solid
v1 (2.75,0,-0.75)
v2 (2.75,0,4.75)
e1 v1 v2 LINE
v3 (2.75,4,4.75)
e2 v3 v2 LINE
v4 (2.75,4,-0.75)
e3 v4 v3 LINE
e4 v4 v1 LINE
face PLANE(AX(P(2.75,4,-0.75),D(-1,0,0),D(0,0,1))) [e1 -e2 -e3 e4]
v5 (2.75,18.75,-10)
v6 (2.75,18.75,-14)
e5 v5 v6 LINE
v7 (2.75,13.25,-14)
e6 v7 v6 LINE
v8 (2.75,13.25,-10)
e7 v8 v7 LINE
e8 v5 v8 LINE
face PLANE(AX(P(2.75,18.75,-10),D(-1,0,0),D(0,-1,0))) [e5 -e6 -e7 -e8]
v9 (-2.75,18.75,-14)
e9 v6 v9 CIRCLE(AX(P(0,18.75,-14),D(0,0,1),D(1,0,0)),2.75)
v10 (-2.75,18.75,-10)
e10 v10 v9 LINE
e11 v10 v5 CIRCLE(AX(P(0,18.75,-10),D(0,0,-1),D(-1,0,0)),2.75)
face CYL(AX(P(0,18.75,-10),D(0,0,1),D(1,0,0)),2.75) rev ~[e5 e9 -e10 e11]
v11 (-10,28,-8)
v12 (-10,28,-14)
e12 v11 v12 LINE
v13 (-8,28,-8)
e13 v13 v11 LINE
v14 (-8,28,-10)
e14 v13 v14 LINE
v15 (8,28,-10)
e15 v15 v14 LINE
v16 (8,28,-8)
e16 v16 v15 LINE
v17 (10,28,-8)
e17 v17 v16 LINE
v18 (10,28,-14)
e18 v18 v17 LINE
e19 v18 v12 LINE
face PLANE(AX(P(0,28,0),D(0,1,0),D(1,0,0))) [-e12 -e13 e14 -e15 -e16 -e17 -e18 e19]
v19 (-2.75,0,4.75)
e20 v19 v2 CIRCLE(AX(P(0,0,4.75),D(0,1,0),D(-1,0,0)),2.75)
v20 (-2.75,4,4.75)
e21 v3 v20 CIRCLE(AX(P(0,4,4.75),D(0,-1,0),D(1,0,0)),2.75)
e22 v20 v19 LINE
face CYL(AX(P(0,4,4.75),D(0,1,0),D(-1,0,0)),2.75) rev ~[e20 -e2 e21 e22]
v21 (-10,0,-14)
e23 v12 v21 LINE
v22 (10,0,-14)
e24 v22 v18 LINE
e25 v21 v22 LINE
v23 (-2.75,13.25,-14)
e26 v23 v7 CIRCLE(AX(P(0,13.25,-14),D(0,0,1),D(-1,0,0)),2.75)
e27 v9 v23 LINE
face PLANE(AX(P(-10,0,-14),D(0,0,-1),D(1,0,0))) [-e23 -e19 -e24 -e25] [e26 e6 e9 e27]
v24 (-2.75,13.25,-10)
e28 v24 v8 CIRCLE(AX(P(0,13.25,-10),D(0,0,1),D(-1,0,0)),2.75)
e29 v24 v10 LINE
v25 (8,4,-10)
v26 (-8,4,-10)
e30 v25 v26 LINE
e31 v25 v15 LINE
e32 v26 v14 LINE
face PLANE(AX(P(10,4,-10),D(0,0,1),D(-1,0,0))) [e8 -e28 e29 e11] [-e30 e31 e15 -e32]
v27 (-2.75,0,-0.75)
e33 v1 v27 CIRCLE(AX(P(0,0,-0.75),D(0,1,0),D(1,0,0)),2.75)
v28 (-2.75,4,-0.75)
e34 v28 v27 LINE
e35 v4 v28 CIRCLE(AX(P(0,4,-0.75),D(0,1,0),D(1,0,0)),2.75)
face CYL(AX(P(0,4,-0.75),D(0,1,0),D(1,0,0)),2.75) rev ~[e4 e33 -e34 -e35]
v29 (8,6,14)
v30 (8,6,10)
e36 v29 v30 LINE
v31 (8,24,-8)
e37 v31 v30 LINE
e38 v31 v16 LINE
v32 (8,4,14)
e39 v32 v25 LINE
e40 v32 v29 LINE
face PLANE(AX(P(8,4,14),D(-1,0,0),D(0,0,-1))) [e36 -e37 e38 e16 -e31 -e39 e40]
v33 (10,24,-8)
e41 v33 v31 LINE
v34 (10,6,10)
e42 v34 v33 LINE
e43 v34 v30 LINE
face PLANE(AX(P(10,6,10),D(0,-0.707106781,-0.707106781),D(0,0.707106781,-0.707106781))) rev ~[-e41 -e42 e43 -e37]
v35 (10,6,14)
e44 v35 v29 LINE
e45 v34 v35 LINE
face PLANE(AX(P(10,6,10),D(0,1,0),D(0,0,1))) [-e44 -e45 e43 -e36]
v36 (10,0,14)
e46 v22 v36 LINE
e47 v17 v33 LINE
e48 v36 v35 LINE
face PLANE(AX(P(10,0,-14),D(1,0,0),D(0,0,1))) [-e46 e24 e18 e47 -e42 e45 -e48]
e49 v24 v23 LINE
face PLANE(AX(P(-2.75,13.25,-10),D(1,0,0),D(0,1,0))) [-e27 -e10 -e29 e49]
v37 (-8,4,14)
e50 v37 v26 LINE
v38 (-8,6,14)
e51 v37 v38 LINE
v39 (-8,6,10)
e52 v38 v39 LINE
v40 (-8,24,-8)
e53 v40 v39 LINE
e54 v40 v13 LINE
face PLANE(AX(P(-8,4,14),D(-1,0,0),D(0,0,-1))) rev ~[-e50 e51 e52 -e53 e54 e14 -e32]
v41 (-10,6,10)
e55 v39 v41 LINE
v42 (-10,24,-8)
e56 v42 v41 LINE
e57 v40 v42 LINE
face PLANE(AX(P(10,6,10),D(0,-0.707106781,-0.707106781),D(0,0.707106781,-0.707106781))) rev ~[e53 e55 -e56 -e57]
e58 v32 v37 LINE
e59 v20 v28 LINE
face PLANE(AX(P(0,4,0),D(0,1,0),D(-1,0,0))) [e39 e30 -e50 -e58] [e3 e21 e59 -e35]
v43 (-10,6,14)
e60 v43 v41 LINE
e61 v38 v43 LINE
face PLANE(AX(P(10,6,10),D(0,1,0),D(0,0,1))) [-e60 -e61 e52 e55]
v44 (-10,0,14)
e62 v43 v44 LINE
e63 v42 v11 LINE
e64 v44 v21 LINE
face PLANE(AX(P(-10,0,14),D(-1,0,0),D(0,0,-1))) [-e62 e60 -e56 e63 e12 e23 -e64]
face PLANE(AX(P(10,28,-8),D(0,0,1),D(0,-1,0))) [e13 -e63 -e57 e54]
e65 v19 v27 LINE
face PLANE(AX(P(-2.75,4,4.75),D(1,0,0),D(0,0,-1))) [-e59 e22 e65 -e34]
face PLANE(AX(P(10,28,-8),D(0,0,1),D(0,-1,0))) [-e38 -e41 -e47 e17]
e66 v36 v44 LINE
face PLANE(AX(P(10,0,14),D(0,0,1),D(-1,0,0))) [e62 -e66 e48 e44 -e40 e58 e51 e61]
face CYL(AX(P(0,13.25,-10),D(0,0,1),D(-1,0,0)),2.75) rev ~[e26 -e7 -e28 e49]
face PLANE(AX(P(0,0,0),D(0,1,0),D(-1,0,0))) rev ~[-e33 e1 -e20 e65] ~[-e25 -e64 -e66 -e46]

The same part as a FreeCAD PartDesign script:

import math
import FreeCAD as App
import Part
import Sketcher


def add_polygon(sketch, points):
    """Adds a closed chain of lines whose ends are joined by coincident constraints."""
    first, n = sketch.GeometryCount, len(points)
    for a, b in zip(points, points[1:] + points[:1]):
        sketch.addGeometry(Part.LineSegment(App.Vector(*a, 0), App.Vector(*b, 0)), False)
    for i in range(n):
        sketch.addConstraint(Sketcher.Constraint("Coincident", first + i, 2, first + (i + 1) % n, 1))

doc = App.newDocument("Part")
body = doc.addObject("PartDesign::Body", "Body")

# Sketch on XZ plane
sketch1 = doc.addObject("Sketcher::SketchObject", "Sketch")
body.addObject(sketch1)
sketch1.AttachmentSupport = (doc.XZ_Plane, [""])
sketch1.MapMode = "FlatFace"
add_polygon(sketch1, [(-10, 14), (10, 14), (10, -14), (-10, -14)])  # lines 0-3
sketch1.addConstraint([
    Sketcher.Constraint("Horizontal", 0),
    Sketcher.Constraint("Vertical", 1),
    Sketcher.Constraint("Horizontal", 2),
    Sketcher.Constraint("Vertical", 3),
    Sketcher.Constraint("Symmetric", 0, 2, 2, 2, -1, 1),
    Sketcher.Constraint("DistanceX", 0, 1, 0, 2, 20.0),
    Sketcher.Constraint("DistanceY", 1, 2, 1, 1, 28.0),
])
pad1 = doc.addObject("PartDesign::Pad", "Pad")
body.addObject(pad1)
pad1.Profile = sketch1
pad1.Length = 4
pad1.Reversed = True

# Sketch on XZ plane
sketch2 = doc.addObject("Sketcher::SketchObject", "Sketch001")
body.addObject(sketch2)
sketch2.AttachmentSupport = (doc.XZ_Plane, [""])
sketch2.MapMode = "FlatFace"
sketch2.AttachmentOffset = App.Placement(App.Vector(0, 0, -4), App.Rotation())
add_polygon(sketch2, [(10, -10), (10, -14), (-10, -14), (-10, -10)])  # lines 0-3
sketch2.addConstraint([
    Sketcher.Constraint("Vertical", 0),
    Sketcher.Constraint("Horizontal", 1),
    Sketcher.Constraint("Vertical", 2),
    Sketcher.Constraint("Horizontal", 3),
    Sketcher.Constraint("DistanceY", 0, 2, 0, 1, 4.0),
    Sketcher.Constraint("DistanceX", 1, 2, 1, 1, 20.0),
    Sketcher.Constraint("DistanceX", -1, 1, 0, 2, 10.0),
    Sketcher.Constraint("DistanceY", 0, 2, -1, 1, 14.0),
])
pad2 = doc.addObject("PartDesign::Pad", "Pad001")
body.addObject(pad2)
pad2.Profile = sketch2
pad2.Length = 24
pad2.Reversed = True

# Sketch on XZ plane
sketch3 = doc.addObject("Sketcher::SketchObject", "Sketch002")
body.addObject(sketch3)
sketch3.AttachmentSupport = (doc.XZ_Plane, [""])
sketch3.MapMode = "FlatFace"
sketch3.AttachmentOffset = App.Placement(App.Vector(0, 0, -4), App.Rotation())
add_polygon(sketch3, [(10, -10), (8, -10), (8, 14), (10, 14)])  # lines 0-3
add_polygon(sketch3, [(-8, -10), (-10, -10), (-10, 14), (-8, 14)])  # lines 4-7
sketch3.addConstraint([
    Sketcher.Constraint("Horizontal", 0),
    Sketcher.Constraint("Vertical", 1),
    Sketcher.Constraint("Horizontal", 2),
    Sketcher.Constraint("Vertical", 3),
    Sketcher.Constraint("Horizontal", 4),
    Sketcher.Constraint("Vertical", 5),
    Sketcher.Constraint("Horizontal", 6),
    Sketcher.Constraint("Vertical", 7),
    Sketcher.Constraint("Symmetric", 3, 2, 4, 2, -2),
    Sketcher.Constraint("Symmetric", 1, 2, 6, 2, -2),
    Sketcher.Constraint("DistanceX", 0, 2, 0, 1, 2.0),
    Sketcher.Constraint("DistanceY", 1, 1, 1, 2, 24.0),
    Sketcher.Constraint("DistanceX", -1, 1, 0, 2, 8.0),
    Sketcher.Constraint("DistanceY", 0, 2, -1, 1, 10.0),
])
pad3 = doc.addObject("PartDesign::Pad", "Pad002")
body.addObject(pad3)
pad3.Profile = sketch3
pad3.Length = 24
pad3.Reversed = True

# Sketch on YZ plane
sketch4 = doc.addObject("Sketcher::SketchObject", "Sketch003")
body.addObject(sketch4)
sketch4.AttachmentSupport = (doc.YZ_Plane, [""])
sketch4.MapMode = "FlatFace"
sketch4.AttachmentOffset = App.Placement(App.Vector(0, 0, 10), App.Rotation())
add_polygon(sketch4, [(28, 14), (6, 14), (6, 10), (24, -8), (28, -8)])  # lines 0-4
sketch4.addConstraint([
    Sketcher.Constraint("Horizontal", 0),
    Sketcher.Constraint("Vertical", 1),
    Sketcher.Constraint("Horizontal", 3),
    Sketcher.Constraint("Vertical", 4),
    Sketcher.Constraint("Equal", 3, 1),
    Sketcher.Constraint("Equal", 0, 4),
    Sketcher.Constraint("DistanceX", 3, 1, 3, 2, 4.0),
    Sketcher.Constraint("DistanceX", 0, 2, 0, 1, 22.0),
    Sketcher.Constraint("DistanceX", -1, 1, 0, 2, 6.0),
    Sketcher.Constraint("DistanceY", -1, 1, 0, 2, 14.0),
])
pocket1 = doc.addObject("PartDesign::Pocket", "Pocket")
body.addObject(pocket1)
pocket1.Profile = sketch4
pocket1.Length = 24

# Sketch on XZ plane
sketch5 = doc.addObject("Sketcher::SketchObject", "Sketch004")
body.addObject(sketch5)
sketch5.AttachmentSupport = (doc.XZ_Plane, [""])
sketch5.MapMode = "FlatFace"
sketch5.AttachmentOffset = App.Placement(App.Vector(0, 0, -4), App.Rotation())
sketch5.addGeometry([
    Part.ArcOfCircle(Part.Circle(App.Vector(0, 4.8, 0), App.Vector(0, 0, 1), 2.8), math.radians(0), math.radians(180)),
    Part.LineSegment(App.Vector(2.8, 4.8, 0), App.Vector(2.8, -0.8, 0)),
    Part.ArcOfCircle(Part.Circle(App.Vector(0, -0.8, 0), App.Vector(0, 0, 1), 2.8), math.radians(180), math.radians(360)),
    Part.LineSegment(App.Vector(-2.8, -0.8, 0), App.Vector(-2.8, 4.8, 0)),
], False)
sketch5.addConstraint([
    Sketcher.Constraint("Tangent", 0, 1, 1, 1),
    Sketcher.Constraint("Tangent", 1, 2, 2, 2),
    Sketcher.Constraint("Tangent", 2, 1, 3, 1),
    Sketcher.Constraint("Tangent", 3, 2, 0, 2),
    Sketcher.Constraint("Vertical", 1),
    Sketcher.Constraint("Vertical", 3),
    Sketcher.Constraint("PointOnObject", 0, 3, -2),
    Sketcher.Constraint("Radius", 0, 2.75),
    Sketcher.Constraint("DistanceY", 1, 2, 1, 1, 5.5),
    Sketcher.Constraint("DistanceY", -1, 1, 0, 3, 4.75),
])
pocket2 = doc.addObject("PartDesign::Pocket", "Pocket001")
body.addObject(pocket2)
pocket2.Profile = sketch5
pocket2.Length = 24
pocket2.Reversed = True

# Sketch on XY plane
sketch6 = doc.addObject("Sketcher::SketchObject", "Sketch005")
body.addObject(sketch6)
sketch6.AttachmentSupport = (doc.XY_Plane, [""])
sketch6.MapMode = "FlatFace"
sketch6.AttachmentOffset = App.Placement(App.Vector(0, 0, -10), App.Rotation())
sketch6.addGeometry([
    Part.ArcOfCircle(Part.Circle(App.Vector(0, 18.8, 0), App.Vector(0, 0, 1), 2.8), math.radians(0), math.radians(180)),
    Part.LineSegment(App.Vector(-2.8, 18.8, 0), App.Vector(-2.8, 13.2, 0)),
    Part.ArcOfCircle(Part.Circle(App.Vector(0, 13.2, 0), App.Vector(0, 0, 1), 2.8), math.radians(180), math.radians(360)),
    Part.LineSegment(App.Vector(2.8, 13.2, 0), App.Vector(2.8, 18.8, 0)),
], False)
sketch6.addConstraint([
    Sketcher.Constraint("Tangent", 0, 2, 1, 1),
    Sketcher.Constraint("Tangent", 1, 2, 2, 1),
    Sketcher.Constraint("Tangent", 2, 2, 3, 1),
    Sketcher.Constraint("Tangent", 3, 2, 0, 1),
    Sketcher.Constraint("Vertical", 1),
    Sketcher.Constraint("Vertical", 3),
    Sketcher.Constraint("PointOnObject", 0, 3, -2),
    Sketcher.Constraint("Radius", 0, 2.75),
    Sketcher.Constraint("DistanceY", 1, 2, 1, 1, 5.5),
    Sketcher.Constraint("DistanceY", -1, 1, 0, 3, 18.75),
])
pocket3 = doc.addObject("PartDesign::Pocket", "Pocket002")
body.addObject(pocket3)
pocket3.Profile = sketch6
pocket3.Length = 24

doc.recompute()
